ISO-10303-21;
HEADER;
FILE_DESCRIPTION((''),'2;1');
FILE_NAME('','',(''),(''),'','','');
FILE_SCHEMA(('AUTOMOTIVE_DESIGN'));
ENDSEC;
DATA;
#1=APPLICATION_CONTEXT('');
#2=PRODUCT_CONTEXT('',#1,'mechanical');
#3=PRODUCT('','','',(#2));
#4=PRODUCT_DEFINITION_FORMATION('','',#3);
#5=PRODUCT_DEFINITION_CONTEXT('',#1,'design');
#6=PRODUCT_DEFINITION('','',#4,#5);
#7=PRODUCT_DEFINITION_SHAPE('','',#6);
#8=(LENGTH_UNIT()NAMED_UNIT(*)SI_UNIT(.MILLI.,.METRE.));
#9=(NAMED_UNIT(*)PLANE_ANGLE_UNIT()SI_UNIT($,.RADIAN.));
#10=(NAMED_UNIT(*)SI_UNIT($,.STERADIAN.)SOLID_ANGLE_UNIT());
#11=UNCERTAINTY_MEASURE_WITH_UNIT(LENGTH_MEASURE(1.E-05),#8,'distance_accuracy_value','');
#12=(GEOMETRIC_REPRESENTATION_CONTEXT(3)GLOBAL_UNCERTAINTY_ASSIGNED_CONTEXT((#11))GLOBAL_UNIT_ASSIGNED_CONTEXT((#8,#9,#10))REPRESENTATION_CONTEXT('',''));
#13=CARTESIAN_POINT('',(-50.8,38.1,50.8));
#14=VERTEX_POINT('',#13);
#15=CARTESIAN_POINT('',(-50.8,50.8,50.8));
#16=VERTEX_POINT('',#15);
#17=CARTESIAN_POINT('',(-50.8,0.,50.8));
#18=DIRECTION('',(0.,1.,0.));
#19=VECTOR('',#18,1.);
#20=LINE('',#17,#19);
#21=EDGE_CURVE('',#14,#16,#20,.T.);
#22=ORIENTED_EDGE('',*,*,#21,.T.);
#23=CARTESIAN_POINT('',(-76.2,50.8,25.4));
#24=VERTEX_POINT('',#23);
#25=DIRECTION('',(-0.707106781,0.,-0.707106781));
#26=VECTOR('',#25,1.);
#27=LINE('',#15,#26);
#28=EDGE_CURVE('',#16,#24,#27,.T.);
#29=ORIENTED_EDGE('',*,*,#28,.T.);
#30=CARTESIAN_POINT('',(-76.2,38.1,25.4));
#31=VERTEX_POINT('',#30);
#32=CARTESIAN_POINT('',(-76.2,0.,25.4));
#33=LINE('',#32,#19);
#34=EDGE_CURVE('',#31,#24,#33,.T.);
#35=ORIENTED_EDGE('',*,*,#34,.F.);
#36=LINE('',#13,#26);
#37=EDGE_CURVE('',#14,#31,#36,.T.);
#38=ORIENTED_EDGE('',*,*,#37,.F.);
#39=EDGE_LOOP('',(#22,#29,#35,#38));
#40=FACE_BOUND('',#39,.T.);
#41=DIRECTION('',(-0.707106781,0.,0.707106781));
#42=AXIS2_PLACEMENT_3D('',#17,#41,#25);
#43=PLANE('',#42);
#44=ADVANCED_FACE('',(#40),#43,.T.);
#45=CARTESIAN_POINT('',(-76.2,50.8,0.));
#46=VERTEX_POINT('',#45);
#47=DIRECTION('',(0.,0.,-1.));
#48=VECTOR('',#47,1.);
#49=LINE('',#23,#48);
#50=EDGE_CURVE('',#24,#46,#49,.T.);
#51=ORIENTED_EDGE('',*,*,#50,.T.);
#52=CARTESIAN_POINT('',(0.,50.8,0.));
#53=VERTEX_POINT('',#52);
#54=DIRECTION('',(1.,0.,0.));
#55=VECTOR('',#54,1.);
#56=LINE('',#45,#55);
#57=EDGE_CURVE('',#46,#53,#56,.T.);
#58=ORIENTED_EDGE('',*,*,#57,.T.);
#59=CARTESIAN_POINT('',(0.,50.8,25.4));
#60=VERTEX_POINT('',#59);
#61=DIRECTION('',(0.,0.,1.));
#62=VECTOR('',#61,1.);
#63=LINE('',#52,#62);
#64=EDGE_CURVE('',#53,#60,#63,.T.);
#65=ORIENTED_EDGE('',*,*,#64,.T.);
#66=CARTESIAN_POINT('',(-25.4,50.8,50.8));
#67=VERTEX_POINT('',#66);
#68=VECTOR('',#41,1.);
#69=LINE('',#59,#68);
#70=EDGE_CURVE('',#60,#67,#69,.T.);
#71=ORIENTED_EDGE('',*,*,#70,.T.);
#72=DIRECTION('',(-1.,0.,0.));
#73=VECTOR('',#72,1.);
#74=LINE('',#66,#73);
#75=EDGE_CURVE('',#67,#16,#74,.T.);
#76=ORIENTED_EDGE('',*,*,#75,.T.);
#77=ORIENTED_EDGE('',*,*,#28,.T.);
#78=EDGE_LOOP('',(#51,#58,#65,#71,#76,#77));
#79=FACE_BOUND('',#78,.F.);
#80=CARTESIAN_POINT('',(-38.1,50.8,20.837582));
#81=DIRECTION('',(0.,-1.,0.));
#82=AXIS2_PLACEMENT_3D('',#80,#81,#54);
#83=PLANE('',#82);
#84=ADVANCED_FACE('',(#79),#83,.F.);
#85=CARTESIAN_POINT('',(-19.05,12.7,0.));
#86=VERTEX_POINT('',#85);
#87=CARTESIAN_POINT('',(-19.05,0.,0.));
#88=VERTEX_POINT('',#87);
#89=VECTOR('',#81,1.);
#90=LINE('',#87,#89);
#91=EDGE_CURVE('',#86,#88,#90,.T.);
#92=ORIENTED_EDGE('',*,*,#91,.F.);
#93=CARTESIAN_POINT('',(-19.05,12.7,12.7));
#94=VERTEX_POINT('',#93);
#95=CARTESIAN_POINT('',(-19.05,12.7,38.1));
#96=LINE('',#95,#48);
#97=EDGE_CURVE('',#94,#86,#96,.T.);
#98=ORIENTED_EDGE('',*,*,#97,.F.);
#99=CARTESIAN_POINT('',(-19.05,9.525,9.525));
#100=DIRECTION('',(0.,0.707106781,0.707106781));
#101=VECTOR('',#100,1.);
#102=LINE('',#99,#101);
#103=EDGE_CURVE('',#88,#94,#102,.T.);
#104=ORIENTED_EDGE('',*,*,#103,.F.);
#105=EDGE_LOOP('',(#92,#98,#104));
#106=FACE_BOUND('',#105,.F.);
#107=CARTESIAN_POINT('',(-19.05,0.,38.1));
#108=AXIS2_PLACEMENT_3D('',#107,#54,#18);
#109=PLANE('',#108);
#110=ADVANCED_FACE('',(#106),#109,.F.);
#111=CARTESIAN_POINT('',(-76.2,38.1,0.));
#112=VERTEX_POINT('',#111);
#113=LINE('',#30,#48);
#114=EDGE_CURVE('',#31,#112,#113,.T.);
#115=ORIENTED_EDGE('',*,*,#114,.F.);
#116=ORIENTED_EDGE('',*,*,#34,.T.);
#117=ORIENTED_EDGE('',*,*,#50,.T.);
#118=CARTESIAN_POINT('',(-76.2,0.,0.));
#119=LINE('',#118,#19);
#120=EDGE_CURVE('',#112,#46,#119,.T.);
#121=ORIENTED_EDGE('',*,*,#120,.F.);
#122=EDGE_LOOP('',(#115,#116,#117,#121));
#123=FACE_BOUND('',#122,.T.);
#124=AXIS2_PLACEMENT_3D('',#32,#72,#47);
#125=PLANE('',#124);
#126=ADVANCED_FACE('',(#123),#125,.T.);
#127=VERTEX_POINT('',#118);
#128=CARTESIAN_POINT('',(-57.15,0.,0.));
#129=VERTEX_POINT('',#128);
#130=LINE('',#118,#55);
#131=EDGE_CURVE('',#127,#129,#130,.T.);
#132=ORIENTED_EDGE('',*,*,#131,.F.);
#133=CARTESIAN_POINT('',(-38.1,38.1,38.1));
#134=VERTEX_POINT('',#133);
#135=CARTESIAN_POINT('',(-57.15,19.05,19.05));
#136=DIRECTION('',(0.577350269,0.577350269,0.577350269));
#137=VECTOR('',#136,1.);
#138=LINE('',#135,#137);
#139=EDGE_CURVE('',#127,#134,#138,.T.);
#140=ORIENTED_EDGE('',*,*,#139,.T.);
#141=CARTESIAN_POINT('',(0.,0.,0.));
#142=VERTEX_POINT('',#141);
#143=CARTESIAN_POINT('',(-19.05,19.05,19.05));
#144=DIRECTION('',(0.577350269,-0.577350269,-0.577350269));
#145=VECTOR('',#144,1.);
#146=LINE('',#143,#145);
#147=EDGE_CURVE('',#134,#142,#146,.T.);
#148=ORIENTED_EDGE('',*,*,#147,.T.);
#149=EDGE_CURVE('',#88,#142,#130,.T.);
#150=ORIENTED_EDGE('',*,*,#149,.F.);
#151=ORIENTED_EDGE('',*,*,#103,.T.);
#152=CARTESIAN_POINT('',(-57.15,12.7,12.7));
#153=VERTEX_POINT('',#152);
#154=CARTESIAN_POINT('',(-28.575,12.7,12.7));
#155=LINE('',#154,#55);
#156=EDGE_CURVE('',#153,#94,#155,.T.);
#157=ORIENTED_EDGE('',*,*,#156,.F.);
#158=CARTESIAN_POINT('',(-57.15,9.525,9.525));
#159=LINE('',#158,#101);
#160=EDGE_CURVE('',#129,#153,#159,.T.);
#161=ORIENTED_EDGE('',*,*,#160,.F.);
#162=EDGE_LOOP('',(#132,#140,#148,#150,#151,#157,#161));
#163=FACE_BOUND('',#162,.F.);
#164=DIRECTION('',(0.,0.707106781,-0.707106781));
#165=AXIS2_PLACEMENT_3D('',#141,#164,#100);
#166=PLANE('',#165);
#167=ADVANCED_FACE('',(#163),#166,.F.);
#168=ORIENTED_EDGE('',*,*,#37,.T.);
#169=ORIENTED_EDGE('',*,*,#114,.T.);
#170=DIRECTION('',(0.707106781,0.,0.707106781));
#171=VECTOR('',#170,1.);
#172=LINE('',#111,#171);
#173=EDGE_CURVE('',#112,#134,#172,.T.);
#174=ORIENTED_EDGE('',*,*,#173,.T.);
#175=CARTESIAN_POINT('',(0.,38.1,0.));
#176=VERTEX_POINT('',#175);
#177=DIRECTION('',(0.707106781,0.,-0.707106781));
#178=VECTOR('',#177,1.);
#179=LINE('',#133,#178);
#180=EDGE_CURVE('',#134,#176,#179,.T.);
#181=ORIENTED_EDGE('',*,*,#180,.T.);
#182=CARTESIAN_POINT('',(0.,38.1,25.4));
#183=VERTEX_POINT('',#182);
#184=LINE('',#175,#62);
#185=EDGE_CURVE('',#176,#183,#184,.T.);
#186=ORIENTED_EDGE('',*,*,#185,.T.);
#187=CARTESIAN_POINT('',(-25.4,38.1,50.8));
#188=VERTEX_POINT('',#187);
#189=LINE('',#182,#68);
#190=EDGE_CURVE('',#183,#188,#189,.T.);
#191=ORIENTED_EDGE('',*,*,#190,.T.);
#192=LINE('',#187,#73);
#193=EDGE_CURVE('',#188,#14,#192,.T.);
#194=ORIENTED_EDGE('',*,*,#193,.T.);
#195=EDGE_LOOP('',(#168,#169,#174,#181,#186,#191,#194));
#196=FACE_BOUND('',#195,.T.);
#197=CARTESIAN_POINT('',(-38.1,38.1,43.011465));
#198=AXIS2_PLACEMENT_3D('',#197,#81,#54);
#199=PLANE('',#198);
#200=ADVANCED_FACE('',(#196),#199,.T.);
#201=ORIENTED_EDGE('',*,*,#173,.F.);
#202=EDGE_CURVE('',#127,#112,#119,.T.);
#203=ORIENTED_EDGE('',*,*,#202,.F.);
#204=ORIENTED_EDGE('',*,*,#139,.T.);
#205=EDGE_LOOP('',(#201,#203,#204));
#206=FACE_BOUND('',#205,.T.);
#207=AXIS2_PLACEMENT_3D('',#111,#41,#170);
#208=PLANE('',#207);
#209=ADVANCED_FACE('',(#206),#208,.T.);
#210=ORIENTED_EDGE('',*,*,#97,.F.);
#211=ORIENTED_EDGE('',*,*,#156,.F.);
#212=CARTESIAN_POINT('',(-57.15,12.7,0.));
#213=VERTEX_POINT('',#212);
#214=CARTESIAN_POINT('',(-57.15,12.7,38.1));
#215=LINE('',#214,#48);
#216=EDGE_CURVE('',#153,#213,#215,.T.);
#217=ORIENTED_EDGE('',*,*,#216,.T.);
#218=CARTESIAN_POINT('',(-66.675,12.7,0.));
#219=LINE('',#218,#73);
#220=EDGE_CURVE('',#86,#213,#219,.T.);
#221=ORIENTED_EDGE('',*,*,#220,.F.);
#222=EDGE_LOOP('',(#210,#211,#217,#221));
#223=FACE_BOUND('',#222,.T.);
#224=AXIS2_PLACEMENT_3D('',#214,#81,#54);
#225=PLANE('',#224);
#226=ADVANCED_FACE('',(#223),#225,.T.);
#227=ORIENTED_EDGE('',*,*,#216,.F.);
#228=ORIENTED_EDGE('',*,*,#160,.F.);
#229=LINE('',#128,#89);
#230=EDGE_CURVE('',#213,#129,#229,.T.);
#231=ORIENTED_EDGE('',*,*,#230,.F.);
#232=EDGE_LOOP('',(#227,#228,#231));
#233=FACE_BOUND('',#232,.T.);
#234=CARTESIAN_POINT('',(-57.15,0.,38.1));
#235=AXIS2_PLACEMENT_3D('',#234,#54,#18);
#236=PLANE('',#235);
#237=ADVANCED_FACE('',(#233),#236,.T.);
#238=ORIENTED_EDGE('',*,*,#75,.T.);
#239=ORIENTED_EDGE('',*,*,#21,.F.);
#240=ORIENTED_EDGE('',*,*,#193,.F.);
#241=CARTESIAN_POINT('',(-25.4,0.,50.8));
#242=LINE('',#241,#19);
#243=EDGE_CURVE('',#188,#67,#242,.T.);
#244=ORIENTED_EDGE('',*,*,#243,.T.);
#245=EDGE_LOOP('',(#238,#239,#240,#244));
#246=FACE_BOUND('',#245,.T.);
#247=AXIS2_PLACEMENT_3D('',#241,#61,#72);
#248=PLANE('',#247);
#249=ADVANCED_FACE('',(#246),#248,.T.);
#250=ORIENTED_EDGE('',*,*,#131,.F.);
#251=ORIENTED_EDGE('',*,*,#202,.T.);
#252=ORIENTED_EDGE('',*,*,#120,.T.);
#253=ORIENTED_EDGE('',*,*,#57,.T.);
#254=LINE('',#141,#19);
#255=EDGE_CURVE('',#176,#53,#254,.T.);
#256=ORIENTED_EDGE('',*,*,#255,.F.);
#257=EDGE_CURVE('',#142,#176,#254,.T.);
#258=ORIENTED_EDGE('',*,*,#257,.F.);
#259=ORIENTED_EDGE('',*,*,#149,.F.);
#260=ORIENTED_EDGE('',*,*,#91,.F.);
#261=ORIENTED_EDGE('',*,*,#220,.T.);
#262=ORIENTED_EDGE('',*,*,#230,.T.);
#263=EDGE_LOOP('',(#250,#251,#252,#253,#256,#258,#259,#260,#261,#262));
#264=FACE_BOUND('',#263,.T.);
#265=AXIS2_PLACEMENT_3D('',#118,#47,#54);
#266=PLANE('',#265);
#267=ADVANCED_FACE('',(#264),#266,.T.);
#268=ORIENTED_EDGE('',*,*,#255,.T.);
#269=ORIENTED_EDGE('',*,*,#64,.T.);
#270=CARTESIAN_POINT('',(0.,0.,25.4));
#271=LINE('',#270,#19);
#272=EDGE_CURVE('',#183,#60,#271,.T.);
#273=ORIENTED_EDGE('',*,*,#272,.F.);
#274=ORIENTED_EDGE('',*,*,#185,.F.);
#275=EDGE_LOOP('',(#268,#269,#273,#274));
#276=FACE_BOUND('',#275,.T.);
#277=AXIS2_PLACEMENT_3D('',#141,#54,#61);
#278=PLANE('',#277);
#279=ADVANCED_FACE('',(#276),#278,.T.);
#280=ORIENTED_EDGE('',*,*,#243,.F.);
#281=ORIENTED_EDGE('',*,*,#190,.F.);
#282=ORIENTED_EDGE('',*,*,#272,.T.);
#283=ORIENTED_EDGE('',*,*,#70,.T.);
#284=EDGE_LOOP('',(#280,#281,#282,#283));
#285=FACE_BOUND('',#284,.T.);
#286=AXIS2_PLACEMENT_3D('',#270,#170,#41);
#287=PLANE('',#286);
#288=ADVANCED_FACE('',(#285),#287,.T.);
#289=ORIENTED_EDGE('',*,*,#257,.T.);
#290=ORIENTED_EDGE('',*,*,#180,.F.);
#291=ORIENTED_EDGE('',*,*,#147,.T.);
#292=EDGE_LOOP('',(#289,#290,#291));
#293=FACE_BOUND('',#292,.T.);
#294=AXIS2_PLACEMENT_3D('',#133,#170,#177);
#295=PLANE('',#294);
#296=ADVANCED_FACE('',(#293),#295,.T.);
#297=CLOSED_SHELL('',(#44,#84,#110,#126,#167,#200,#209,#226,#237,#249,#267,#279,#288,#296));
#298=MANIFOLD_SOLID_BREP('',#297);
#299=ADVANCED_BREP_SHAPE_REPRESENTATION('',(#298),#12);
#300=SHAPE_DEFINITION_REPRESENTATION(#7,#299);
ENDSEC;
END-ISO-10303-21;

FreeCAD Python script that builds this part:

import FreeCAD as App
import Part
import Sketcher
Q = App.Units.Quantity

doc = App.newDocument("Part")
body = doc.addObject("PartDesign::Body", "Body")

sketch1 = body.newObject("Sketcher::SketchObject", "Sketch")
sketch1.AttachmentSupport = (doc.getObject("XZ_Plane"), [""])
sketch1.MapMode = "FlatFace"
sketch1.addGeometry(Part.LineSegment(App.Vector(-76, 0, 0), App.Vector(0, 0, 0)), False)
sketch1.addGeometry(Part.LineSegment(App.Vector(0, 0, 0), App.Vector(0, 25, 0)), False)
sketch1.addGeometry(Part.LineSegment(App.Vector(0, 25, 0), App.Vector(-25, 51, 0)), False)
sketch1.addGeometry(Part.LineSegment(App.Vector(-25, 51, 0), App.Vector(-51, 51, 0)), False)
sketch1.addGeometry(Part.LineSegment(App.Vector(-51, 51, 0), App.Vector(-76, 25, 0)), False)
sketch1.addGeometry(Part.LineSegment(App.Vector(-76, 25, 0), App.Vector(-76, 0, 0)), False)
sketch1.addConstraint(Sketcher.Constraint("Coincident", 0, 2, 1, 1))
sketch1.addConstraint(Sketcher.Constraint("Coincident", 1, 2, 2, 1))
sketch1.addConstraint(Sketcher.Constraint("Coincident", 2, 2, 3, 1))
sketch1.addConstraint(Sketcher.Constraint("Coincident", 3, 2, 4, 1))
sketch1.addConstraint(Sketcher.Constraint("Coincident", 4, 2, 5, 1))
sketch1.addConstraint(Sketcher.Constraint("Coincident", 5, 2, 0, 1))
sketch1.addConstraint(Sketcher.Constraint("Horizontal", 0))
sketch1.addConstraint(Sketcher.Constraint("Vertical", 1))
sketch1.addConstraint(Sketcher.Constraint("Horizontal", 3))
sketch1.addConstraint(Sketcher.Constraint("Vertical", 5))
sketch1.addConstraint(Sketcher.Constraint("Coincident", 0, 2, -1, 1))
sketch1.addConstraint(Sketcher.Constraint("Perpendicular", 2, 4))
sketch1.addConstraint(Sketcher.Constraint("Horizontal", 1, 2, 4, 2))
sketch1.addConstraint(Sketcher.Constraint("Equal", 3, 1))
sketch1.addConstraint(Sketcher.Constraint("Equal", 2, 4))
sketch1.addConstraint(Sketcher.Constraint("DistanceX", 0, 1, 0, 2, Q("3 in")))
sketch1.addConstraint(Sketcher.Constraint("DistanceX", 3, 2, 3, 1, Q("1 in")))
pad1 = body.newObject("PartDesign::Pad", "Pad")
pad1.Profile = sketch1
pad1.Length = Q("2 in")
pad1.Reversed = True

sketch2 = body.newObject("Sketcher::SketchObject", "Sketch001")
sketch2.AttachmentSupport = (doc.getObject("XZ_Plane"), [""])
sketch2.MapMode = "FlatFace"
sketch2.addGeometry(Part.LineSegment(App.Vector(-51, 51, 0), App.Vector(-64, 38, 0)), False)
sketch2.addGeometry(Part.LineSegment(App.Vector(-64, 38, 0), App.Vector(-13, 38, 0)), False)
sketch2.addGeometry(Part.LineSegment(App.Vector(-13, 38, 0), App.Vector(-25, 51, 0)), False)
sketch2.addGeometry(Part.LineSegment(App.Vector(-25, 51, 0), App.Vector(-51, 51, 0)), False)
sketch2.addConstraint(Sketcher.Constraint("Coincident", 0, 2, 1, 1))
sketch2.addConstraint(Sketcher.Constraint("Coincident", 1, 2, 2, 1))
sketch2.addConstraint(Sketcher.Constraint("Coincident", 2, 2, 3, 1))
sketch2.addConstraint(Sketcher.Constraint("Coincident", 3, 2, 0, 1))
sketch2.addConstraint(Sketcher.Constraint("Horizontal", 1))
sketch2.addConstraint(Sketcher.Constraint("Horizontal", 3))
sketch2.addConstraint(Sketcher.Constraint("Perpendicular", 0, 2))
sketch2.addConstraint(Sketcher.Constraint("Equal", 0, 2))
sketch2.addConstraint(Sketcher.Constraint("DistanceX", 1, 1, 1, 2, Q("2 in")))
sketch2.addConstraint(Sketcher.Constraint("DistanceX", 3, 2, 3, 1, Q("1 in")))
sketch2.addConstraint(Sketcher.Constraint("DistanceX", 2, 2, -1, 1, Q("1 in")))
sketch2.addConstraint(Sketcher.Constraint("DistanceY", -1, 1, 2, 2, Q("2 in")))
pocket1 = body.newObject("PartDesign::Pocket", "Pocket")
pocket1.Profile = sketch2
pocket1.Length = Q("1.5 in")

sketch3 = body.newObject("Sketcher::SketchObject", "Sketch002")
sketch3.AttachmentSupport = (doc.getObject("XY_Plane"), [""])
sketch3.MapMode = "FlatFace"
sketch3.AttachmentOffset = App.Placement(App.Vector(0, 0, 1.5 * 25.4), App.Rotation())
sketch3.addGeometry(Part.LineSegment(App.Vector(-57, 13, 0), App.Vector(-57, 0, 0)), False)
sketch3.addGeometry(Part.LineSegment(App.Vector(-57, 0, 0), App.Vector(-19, 0, 0)), False)
sketch3.addGeometry(Part.LineSegment(App.Vector(-19, 0, 0), App.Vector(-19, 13, 0)), False)
sketch3.addGeometry(Part.LineSegment(App.Vector(-19, 13, 0), App.Vector(-57, 13, 0)), False)
sketch3.addConstraint(Sketcher.Constraint("Coincident", 0, 2, 1, 1))
sketch3.addConstraint(Sketcher.Constraint("Coincident", 1, 2, 2, 1))
sketch3.addConstraint(Sketcher.Constraint("Coincident", 2, 2, 3, 1))
sketch3.addConstraint(Sketcher.Constraint("Coincident", 3, 2, 0, 1))
sketch3.addConstraint(Sketcher.Constraint("Vertical", 0))
sketch3.addConstraint(Sketcher.Constraint("Horizontal", 1))
sketch3.addConstraint(Sketcher.Constraint("Vertical", 2))
sketch3.addConstraint(Sketcher.Constraint("Horizontal", 3))
sketch3.addConstraint(Sketcher.Constraint("PointOnObject", 0, 2, -1))
sketch3.addConstraint(Sketcher.Constraint("DistanceX", 1, 1, 1, 2, Q("1.5 in")))
sketch3.addConstraint(Sketcher.Constraint("DistanceY", 0, 2, 0, 1, Q("0.5 in")))
sketch3.addConstraint(Sketcher.Constraint("DistanceX", 0, 2, -1, 1, Q("2.25 in")))
pocket2 = body.newObject("PartDesign::Pocket", "Pocket001")
pocket2.Profile = sketch3
pocket2.Type = "ThroughAll"

sketch4 = body.newObject("Sketcher::SketchObject", "Sketch003")
sketch4.AttachmentSupport = (doc.getObject("YZ_Plane"), [""])
sketch4.MapMode = "FlatFace"
sketch4.addGeometry(Part.LineSegment(App.Vector(0, 38, 0), App.Vector(0, 0, 0)), False)
sketch4.addGeometry(Part.LineSegment(App.Vector(0, 0, 0), App.Vector(38, 38, 0)), False)
sketch4.addGeometry(Part.LineSegment(App.Vector(38, 38, 0), App.Vector(0, 38, 0)), False)
sketch4.addConstraint(Sketcher.Constraint("Coincident", 0, 2, 1, 1))
sketch4.addConstraint(Sketcher.Constraint("Coincident", 1, 2, 2, 1))
sketch4.addConstraint(Sketcher.Constraint("Coincident", 2, 2, 0, 1))
sketch4.addConstraint(Sketcher.Constraint("Vertical", 0))
sketch4.addConstraint(Sketcher.Constraint("Horizontal", 2))
sketch4.addConstraint(Sketcher.Constraint("Coincident", 0, 2, -1, 1))
sketch4.addConstraint(Sketcher.Constraint("Equal", 2, 0))
sketch4.addConstraint(Sketcher.Constraint("DistanceX", 2, 2, 2, 1, Q("1.5 in")))
pocket3 = body.newObject("PartDesign::Pocket", "Pocket002")
pocket3.Profile = sketch4
pocket3.Type = "ThroughAll"

sketch5 = body.newObject("Sketcher::SketchObject", "Sketch004")
sketch5.AttachmentSupport = (doc.getObject("XZ_Plane"), [""])
sketch5.MapMode = "FlatFace"
sketch5.AttachmentOffset = App.Placement(App.Vector(0, 0, -1.5 * 25.4), App.Rotation())
sketch5.addGeometry(Part.LineSegment(App.Vector(-13, 38, 0), App.Vector(-38, 38, 0)), False)
sketch5.addGeometry(Part.LineSegment(App.Vector(-38, 38, 0), App.Vector(0, 0, 0)), False)
sketch5.addGeometry(Part.LineSegment(App.Vector(0, 0, 0), App.Vector(0, 25, 0)), False)
sketch5.addGeometry(Part.LineSegment(App.Vector(0, 25, 0), App.Vector(-13, 38, 0)), False)
sketch5.addConstraint(Sketcher.Constraint("Coincident", 0, 2, 1, 1))
sketch5.addConstraint(Sketcher.Constraint("Coincident", 1, 2, 2, 1))
sketch5.addConstraint(Sketcher.Constraint("Coincident", 2, 2, 3, 1))
sketch5.addConstraint(Sketcher.Constraint("Coincident", 3, 2, 0, 1))
sketch5.addConstraint(Sketcher.Constraint("Horizontal", 0))
sketch5.addConstraint(Sketcher.Constraint("Vertical", 2))
sketch5.addConstraint(Sketcher.Constraint("Coincident", 1, 2, -1, 1))
sketch5.addConstraint(Sketcher.Constraint("Parallel", 1, 3))
sketch5.addConstraint(Sketcher.Constraint("Equal", 0, 2))
sketch5.addConstraint(Sketcher.Constraint("DistanceX", 0, 2, 0, 1, Q("1 in")))
sketch5.addConstraint(Sketcher.Constraint("DistanceX", 0, 2, -1, 1, Q("1.5 in")))
pocket4 = body.newObject("PartDesign::Pocket", "Pocket003")
pocket4.Profile = sketch5
pocket4.Type = "ThroughAll"
pocket4.Reversed = True

sketch6 = body.newObject("Sketcher::SketchObject", "Sketch005")
sketch6.AttachmentSupport = (doc.getObject("XZ_Plane"), [""])
sketch6.MapMode = "FlatFace"
sketch6.AttachmentOffset = App.Placement(App.Vector(0, 0, -1.5 * 25.4), App.Rotation())
sketch6.addGeometry(Part.LineSegment(App.Vector(-76, 0, 0), App.Vector(-38, 38, 0)), False)
sketch6.addGeometry(Part.LineSegment(App.Vector(-38, 38, 0), App.Vector(-64, 38, 0)), False)
sketch6.addGeometry(Part.LineSegment(App.Vector(-64, 38, 0), App.Vector(-76, 25, 0)), False)
sketch6.addGeometry(Part.LineSegment(App.Vector(-76, 25, 0), App.Vector(-76, 0, 0)), False)
sketch6.addConstraint(Sketcher.Constraint("Coincident", 0, 2, 1, 1))
sketch6.addConstraint(Sketcher.Constraint("Coincident", 1, 2, 2, 1))
sketch6.addConstraint(Sketcher.Constraint("Coincident", 2, 2, 3, 1))
sketch6.addConstraint(Sketcher.Constraint("Coincident", 3, 2, 0, 1))
sketch6.addConstraint(Sketcher.Constraint("Horizontal", 1))
sketch6.addConstraint(Sketcher.Constraint("Vertical", 3))
sketch6.addConstraint(Sketcher.Constraint("PointOnObject", 3, 2, -1))
sketch6.addConstraint(Sketcher.Constraint("Parallel", 0, 2))
sketch6.addConstraint(Sketcher.Constraint("Equal", 1, 3))
sketch6.addConstraint(Sketcher.Constraint("DistanceX", 1, 2, 1, 1, Q("1 in")))
sketch6.addConstraint(Sketcher.Constraint("DistanceX", 2, 2, -1, 1, Q("3 in")))
sketch6.addConstraint(Sketcher.Constraint("DistanceX", 0, 2, -1, 1, Q("1.5 in")))
pocket5 = body.newObject("PartDesign::Pocket", "Pocket004")
pocket5.Profile = sketch6
pocket5.Type = "ThroughAll"
pocket5.Reversed = True

doc.recompute()
